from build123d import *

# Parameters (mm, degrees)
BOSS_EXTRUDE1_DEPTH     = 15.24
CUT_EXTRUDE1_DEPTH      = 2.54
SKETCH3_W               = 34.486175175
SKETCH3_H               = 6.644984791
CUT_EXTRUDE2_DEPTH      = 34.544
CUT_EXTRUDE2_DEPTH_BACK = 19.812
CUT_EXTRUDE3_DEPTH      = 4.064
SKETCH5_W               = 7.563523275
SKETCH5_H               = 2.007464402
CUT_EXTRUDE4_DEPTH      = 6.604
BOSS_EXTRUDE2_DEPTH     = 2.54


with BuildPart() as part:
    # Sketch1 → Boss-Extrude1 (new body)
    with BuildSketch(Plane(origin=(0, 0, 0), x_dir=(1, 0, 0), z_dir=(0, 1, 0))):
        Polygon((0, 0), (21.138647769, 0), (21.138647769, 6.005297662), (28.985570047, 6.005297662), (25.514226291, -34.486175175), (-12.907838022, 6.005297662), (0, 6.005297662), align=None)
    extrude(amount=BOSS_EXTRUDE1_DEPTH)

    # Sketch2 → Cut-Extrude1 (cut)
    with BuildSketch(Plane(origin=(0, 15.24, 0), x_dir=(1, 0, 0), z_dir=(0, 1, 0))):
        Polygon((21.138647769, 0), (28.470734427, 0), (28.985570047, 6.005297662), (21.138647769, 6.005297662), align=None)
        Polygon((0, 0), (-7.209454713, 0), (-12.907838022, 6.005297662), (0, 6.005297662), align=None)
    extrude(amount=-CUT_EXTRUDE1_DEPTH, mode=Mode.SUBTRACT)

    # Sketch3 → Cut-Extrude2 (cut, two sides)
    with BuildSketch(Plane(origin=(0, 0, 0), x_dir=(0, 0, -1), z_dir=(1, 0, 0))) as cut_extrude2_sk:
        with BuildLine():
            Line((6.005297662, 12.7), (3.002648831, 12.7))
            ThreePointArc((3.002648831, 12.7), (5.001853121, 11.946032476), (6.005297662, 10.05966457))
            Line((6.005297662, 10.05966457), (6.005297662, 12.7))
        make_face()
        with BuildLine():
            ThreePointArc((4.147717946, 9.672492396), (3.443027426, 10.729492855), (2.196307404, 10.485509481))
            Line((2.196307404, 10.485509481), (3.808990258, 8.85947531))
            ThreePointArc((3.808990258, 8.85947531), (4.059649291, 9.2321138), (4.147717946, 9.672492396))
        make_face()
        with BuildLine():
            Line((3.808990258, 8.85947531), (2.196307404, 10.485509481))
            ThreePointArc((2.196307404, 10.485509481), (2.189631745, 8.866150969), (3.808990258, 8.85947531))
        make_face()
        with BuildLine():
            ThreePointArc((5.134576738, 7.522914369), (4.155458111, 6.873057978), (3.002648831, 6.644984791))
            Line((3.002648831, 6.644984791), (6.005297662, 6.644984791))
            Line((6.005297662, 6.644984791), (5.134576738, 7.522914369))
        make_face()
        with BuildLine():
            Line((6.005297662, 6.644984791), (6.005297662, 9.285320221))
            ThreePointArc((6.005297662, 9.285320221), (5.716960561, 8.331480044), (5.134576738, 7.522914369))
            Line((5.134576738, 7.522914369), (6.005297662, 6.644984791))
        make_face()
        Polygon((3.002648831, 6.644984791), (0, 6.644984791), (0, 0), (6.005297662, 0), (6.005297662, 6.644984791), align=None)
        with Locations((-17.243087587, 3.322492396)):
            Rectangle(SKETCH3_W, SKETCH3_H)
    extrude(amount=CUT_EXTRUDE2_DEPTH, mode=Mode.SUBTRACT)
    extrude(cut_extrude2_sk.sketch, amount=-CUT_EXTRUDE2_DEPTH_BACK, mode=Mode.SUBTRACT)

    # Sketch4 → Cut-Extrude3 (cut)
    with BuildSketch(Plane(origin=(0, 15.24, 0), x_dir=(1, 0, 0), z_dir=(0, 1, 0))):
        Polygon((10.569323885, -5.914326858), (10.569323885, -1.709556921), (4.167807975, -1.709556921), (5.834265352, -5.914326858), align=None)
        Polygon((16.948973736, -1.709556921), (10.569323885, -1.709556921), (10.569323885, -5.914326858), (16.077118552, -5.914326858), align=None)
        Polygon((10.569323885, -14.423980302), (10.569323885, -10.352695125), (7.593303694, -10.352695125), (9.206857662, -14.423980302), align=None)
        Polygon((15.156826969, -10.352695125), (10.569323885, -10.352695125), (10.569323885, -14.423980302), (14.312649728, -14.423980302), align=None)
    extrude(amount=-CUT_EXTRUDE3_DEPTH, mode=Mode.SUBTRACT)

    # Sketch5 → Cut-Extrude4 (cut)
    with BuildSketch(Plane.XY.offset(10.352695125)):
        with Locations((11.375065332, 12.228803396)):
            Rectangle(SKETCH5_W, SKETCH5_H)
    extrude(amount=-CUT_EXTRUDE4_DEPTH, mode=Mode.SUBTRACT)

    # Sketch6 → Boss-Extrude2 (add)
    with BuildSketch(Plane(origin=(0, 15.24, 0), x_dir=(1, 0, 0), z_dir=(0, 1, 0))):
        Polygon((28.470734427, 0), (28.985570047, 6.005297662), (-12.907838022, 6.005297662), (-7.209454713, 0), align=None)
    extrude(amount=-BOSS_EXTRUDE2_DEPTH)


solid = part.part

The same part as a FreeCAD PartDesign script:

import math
import FreeCAD as App
import Part
import Sketcher
Q = App.Units.Quantity

doc = App.newDocument("Part")
body = doc.addObject("PartDesign::Body", "Body")

# Sketch on XZ plane
sketch1 = doc.addObject("Sketcher::SketchObject", "Sketch")
body.addObject(sketch1)
sketch1.AttachmentSupport = (doc.XZ_Plane, [""])
sketch1.MapMode = "FlatFace"
sketch1.addGeometry([
    Part.LineSegment(App.Vector(21.138648, 0, 0), App.Vector(0, 0, 0)),  # 0
    Part.LineSegment(App.Vector(0, 0, 0), App.Vector(0, -6.005298, 0)),  # 1
    Part.LineSegment(App.Vector(0, -6.005298, 0), App.Vector(-12.907838, -6.005298, 0)),  # 2
    Part.LineSegment(App.Vector(-12.907838, -6.005298, 0), App.Vector(25.514226, 34.486175, 0)),  # 3
    Part.LineSegment(App.Vector(25.514226, 34.486175, 0), App.Vector(28.98557, -6.005298, 0)),  # 4
    Part.LineSegment(App.Vector(28.98557, -6.005298, 0), App.Vector(21.138648, -6.005298, 0)),  # 5
    Part.LineSegment(App.Vector(21.138648, -6.005298, 0), App.Vector(21.138648, 0, 0)),  # 6
], False)
sketch1.addConstraint([
    Sketcher.Constraint("Coincident", 0, 2, 1, 1),
    Sketcher.Constraint("Coincident", 1, 2, 2, 1),
    Sketcher.Constraint("Coincident", 2, 2, 3, 1),
    Sketcher.Constraint("Coincident", 3, 2, 4, 1),
    Sketcher.Constraint("Coincident", 4, 2, 5, 1),
    Sketcher.Constraint("Coincident", 5, 2, 6, 1),
    Sketcher.Constraint("Coincident", 6, 2, 0, 1),
    Sketcher.Constraint("Horizontal", 0),
    Sketcher.Constraint("Vertical", 1),
    Sketcher.Constraint("Horizontal", 2),
    Sketcher.Constraint("Horizontal", 5),
    Sketcher.Constraint("Vertical", 6),
    Sketcher.Constraint("Coincident", 0, 2, -1, 1),
    Sketcher.Constraint("Horizontal", 2, 2, 4, 2),
    Sketcher.Constraint("Distance", 4, Q("1.6 in")),
    Sketcher.Constraint("Angle", 4, Q("-85.1 deg")),
    Sketcher.Constraint("DistanceX", 2, 2, 2, 1, Q("12.907838 mm")),
    Sketcher.Constraint("Distance", 3, Q("55.81948 mm")),
    Sketcher.Constraint("DistanceX", 0, 2, 0, 1, Q("21.138648 mm")),
    Sketcher.Constraint("DistanceY", 1, 2, 1, 1, Q("6.005298 mm")),
])
pad1 = doc.addObject("PartDesign::Pad", "Pad")
body.addObject(pad1)
pad1.Profile = sketch1
pad1.Length = Q("0.6 in")
pad1.Reversed = True

# Sketch on XZ plane
sketch2 = doc.addObject("Sketcher::SketchObject", "Sketch001")
body.addObject(sketch2)
sketch2.AttachmentSupport = (doc.XZ_Plane, [""])
sketch2.MapMode = "FlatFace"
sketch2.AttachmentOffset = App.Placement(App.Vector(0, 0, -0.6 * 25.4), App.Rotation())
sketch2.addGeometry([
    Part.LineSegment(App.Vector(21.138648, 0, 0), App.Vector(28.470734, 0, 0)),  # 0
    Part.LineSegment(App.Vector(28.470734, 0, 0), App.Vector(28.98557, -6.005298, 0)),  # 1
    Part.LineSegment(App.Vector(28.98557, -6.005298, 0), App.Vector(21.138648, -6.005298, 0)),  # 2
    Part.LineSegment(App.Vector(21.138648, -6.005298, 0), App.Vector(21.138648, 0, 0)),  # 3
    Part.LineSegment(App.Vector(-7.209455, 0, 0), App.Vector(0, 0, 0)),  # 4
    Part.LineSegment(App.Vector(0, 0, 0), App.Vector(0, -6.005298, 0)),  # 5
    Part.LineSegment(App.Vector(0, -6.005298, 0), App.Vector(-12.907838, -6.005298, 0)),  # 6
    Part.LineSegment(App.Vector(-12.907838, -6.005298, 0), App.Vector(-7.209455, 0, 0)),  # 7
], False)
sketch2.addConstraint([
    Sketcher.Constraint("Coincident", 0, 2, 1, 1),
    Sketcher.Constraint("Coincident", 1, 2, 2, 1),
    Sketcher.Constraint("Coincident", 2, 2, 3, 1),
    Sketcher.Constraint("Coincident", 3, 2, 0, 1),
    Sketcher.Constraint("Coincident", 4, 2, 5, 1),
    Sketcher.Constraint("Coincident", 5, 2, 6, 1),
    Sketcher.Constraint("Coincident", 6, 2, 7, 1),
    Sketcher.Constraint("Coincident", 7, 2, 4, 1),
    Sketcher.Constraint("Horizontal", 0),
    Sketcher.Constraint("Horizontal", 2),
    Sketcher.Constraint("Vertical", 3),
    Sketcher.Constraint("Horizontal", 4),
    Sketcher.Constraint("Vertical", 5),
    Sketcher.Constraint("Horizontal", 6),
    Sketcher.Constraint("Coincident", 4, 2, -1, 1),
    Sketcher.Constraint("PointOnObject", 0, 2, -1),
    Sketcher.Constraint("Horizontal", 2, 2, 5, 2),
    Sketcher.Constraint("Angle", 1, Q("-85.1 deg")),
    Sketcher.Constraint("DistanceX", 6, 2, 6, 1, Q("12.907838 mm")),
    Sketcher.Constraint("DistanceX", 0, 1, 0, 2, Q("7.332087 mm")),
    Sketcher.Constraint("DistanceX", 2, 2, 2, 1, Q("7.846922 mm")),
    Sketcher.Constraint("DistanceX", 4, 1, 4, 2, Q("7.209455 mm")),
    Sketcher.Constraint("DistanceX", -1, 1, 1, 2, Q("28.98557 mm")),
])
pocket1 = doc.addObject("PartDesign::Pocket", "Pocket")
body.addObject(pocket1)
pocket1.Profile = sketch2
pocket1.Length = Q("0.1 in")
pocket1.Reversed = True

# Sketch on YZ plane
sketch3 = doc.addObject("Sketcher::SketchObject", "Sketch002")
body.addObject(sketch3)
sketch3.AttachmentSupport = (doc.YZ_Plane, [""])
sketch3.MapMode = "FlatFace"
sketch3.addGeometry([
    Part.LineSegment(App.Vector(12.7, -6.005298, 0), App.Vector(12.7, -3.002649, 0)),  # 0
    Part.ArcOfCircle(Part.Circle(App.Vector(9.672492, -3.002649, 0), App.Vector(0, 0, 1), 3.027508), math.radians(-82.65262), math.radians(0)),  # 1
    Part.LineSegment(App.Vector(10.059665, -6.005298, 0), App.Vector(12.7, -6.005298, 0)),  # 2
    Part.ArcOfCircle(Part.Circle(App.Vector(9.672492, -3.002649, 0), App.Vector(0, 0, 1), 1.145069), math.radians(-90), math.radians(44.763805)),  # 3
    Part.ArcOfCircle(Part.Circle(App.Vector(9.672492, -3.002649, 0), App.Vector(0, 0, 1), 1.145069), math.radians(44.763805), math.radians(224.763805)),  # 4
    Part.ArcOfCircle(Part.Circle(App.Vector(9.672492, -3.002649, 0), App.Vector(0, 0, 1), 1.145069), math.radians(-135.236196), math.radians(-90)),  # 5
    Part.ArcOfCircle(Part.Circle(App.Vector(9.672492, -3.002649, 0), App.Vector(0, 0, 1), 3.027508), math.radians(-180), math.radians(-135.236195)),  # 6
    Part.LineSegment(App.Vector(6.644985, -3.002649, 0), App.Vector(6.644985, 0, 0)),  # 7
    Part.LineSegment(App.Vector(6.644985, 0, 0), App.Vector(6.644985, 34.486175, 0)),  # 8
    Part.LineSegment(App.Vector(6.644985, 34.486175, 0), App.Vector(0, 34.486175, 0)),  # 9
    Part.LineSegment(App.Vector(0, 34.486175, 0), App.Vector(0, 0, 0)),  # 10
    Part.LineSegment(App.Vector(0, 0, 0), App.Vector(0, -6.005298, 0)),  # 11
    Part.LineSegment(App.Vector(0, -6.005298, 0), App.Vector(9.28532, -6.005298, 0)),  # 12
    Part.ArcOfCircle(Part.Circle(App.Vector(9.672492, -3.002649, 0), App.Vector(0, 0, 1), 3.027508), math.radians(-135.236195), math.radians(-97.347379)),  # 13
], False)
sketch3.addConstraint([
    Sketcher.Constraint("Tangent", 0, 2, 1, 2),
    Sketcher.Constraint("Coincident", 1, 1, 2, 1),
    Sketcher.Constraint("Coincident", 2, 2, 0, 1),
    Sketcher.Constraint("Tangent", 3, 2, 4, 1),
    Sketcher.Constraint("Tangent", 4, 2, 5, 1),
    Sketcher.Constraint("Tangent", 5, 2, 3, 1),
    Sketcher.Constraint("Tangent", 6, 1, 7, 1),
    Sketcher.Constraint("Coincident", 7, 2, 8, 1),
    Sketcher.Constraint("Coincident", 8, 2, 9, 1),
    Sketcher.Constraint("Coincident", 9, 2, 10, 1),
    Sketcher.Constraint("Coincident", 10, 2, 11, 1),
    Sketcher.Constraint("Coincident", 11, 2, 12, 1),
    Sketcher.Constraint("Coincident", 12, 2, 13, 2),
    Sketcher.Constraint("Tangent", 13, 1, 6, 2),
    Sketcher.Constraint("Vertical", 0),
    Sketcher.Constraint("Horizontal", 2),
    Sketcher.Constraint("Vertical", 7),
    Sketcher.Constraint("Vertical", 8),
    Sketcher.Constraint("Horizontal", 9),
    Sketcher.Constraint("Vertical", 10),
    Sketcher.Constraint("Vertical", 11),
    Sketcher.Constraint("Horizontal", 12),
    Sketcher.Constraint("Coincident", 10, 2, -1, 1),
    Sketcher.Constraint("Coincident", 3, 3, 1, 3),
    Sketcher.Constraint("Coincident", 6, 3, 1, 3),
    Sketcher.Constraint("Equal", 1, 6),
    Sketcher.Constraint("Equal", 6, 13),
    Sketcher.Constraint("PointOnObject", 7, 2, -1),
    Sketcher.Constraint("Horizontal", 2, 2, 11, 2),
    Sketcher.Constraint("Vertical", 13, 3, 5, 2),
    Sketcher.Constraint("Equal", 0, 7),
    Sketcher.Constraint("DistanceX", -1, 1, 0, 2, Q("0.5 in")),
    Sketcher.Constraint("Radius", 3, Q("1.145069 mm")),
    Sketcher.Constraint("Radius", 1, Q("3.027508 mm")),
    Sketcher.Constraint("DistanceX", 12, 1, 12, 2, Q("9.28532 mm")),
    Sketcher.Constraint("DistanceY", 8, 1, 8, 2, Q("34.486175 mm")),
    Sketcher.Constraint("DistanceX", -1, 1, 3, 2, Q("10.485509 mm")),
    Sketcher.Constraint("DistanceY", 4, 2, -1, 1, Q("3.80899 mm")),
    Sketcher.Constraint("DistanceX", 13, 1, 4, 2, Q("1.336561 mm")),
])
pocket2 = doc.addObject("PartDesign::Pocket", "Pocket001")
body.addObject(pocket2)
pocket2.Profile = sketch3
pocket2.Type = "ThroughAll"
pocket2.Midplane = True

# Sketch on XZ plane
sketch4 = doc.addObject("Sketcher::SketchObject", "Sketch003")
body.addObject(sketch4)
sketch4.AttachmentSupport = (doc.XZ_Plane, [""])
sketch4.MapMode = "FlatFace"
sketch4.AttachmentOffset = App.Placement(App.Vector(0, 0, -0.6 * 25.4), App.Rotation())
sketch4.addGeometry([
    Part.LineSegment(App.Vector(4.167808, 1.709557, 0), App.Vector(5.834265, 5.914327, 0)),  # 0
    Part.LineSegment(App.Vector(5.834265, 5.914327, 0), App.Vector(16.077119, 5.914327, 0)),  # 1
    Part.LineSegment(App.Vector(16.077119, 5.914327, 0), App.Vector(16.948974, 1.709557, 0)),  # 2
    Part.LineSegment(App.Vector(16.948974, 1.709557, 0), App.Vector(4.167808, 1.709557, 0)),  # 3
    Part.LineSegment(App.Vector(7.593304, 10.352695, 0), App.Vector(9.206858, 14.42398, 0)),  # 4
    Part.LineSegment(App.Vector(9.206858, 14.42398, 0), App.Vector(14.31265, 14.42398, 0)),  # 5
    Part.LineSegment(App.Vector(14.31265, 14.42398, 0), App.Vector(15.156827, 10.352695, 0)),  # 6
    Part.LineSegment(App.Vector(15.156827, 10.352695, 0), App.Vector(7.593304, 10.352695, 0)),  # 7
], False)
sketch4.addConstraint([
    Sketcher.Constraint("Coincident", 0, 2, 1, 1),
    Sketcher.Constraint("Coincident", 1, 2, 2, 1),
    Sketcher.Constraint("Coincident", 2, 2, 3, 1),
    Sketcher.Constraint("Coincident", 3, 2, 0, 1),
    Sketcher.Constraint("Coincident", 4, 2, 5, 1),
    Sketcher.Constraint("Coincident", 5, 2, 6, 1),
    Sketcher.Constraint("Coincident", 6, 2, 7, 1),
    Sketcher.Constraint("Coincident", 7, 2, 4, 1),
    Sketcher.Constraint("Horizontal", 1),
    Sketcher.Constraint("Horizontal", 3),
    Sketcher.Constraint("Horizontal", 5),
    Sketcher.Constraint("Horizontal", 7),
    Sketcher.Constraint("Parallel", 0, 4),
    Sketcher.Constraint("Parallel", 2, 6),
    Sketcher.Constraint("Distance", 0, Q("4.52296 mm")),
    Sketcher.Constraint("DistanceX", 1, 1, 1, 2, Q("10.242853 mm")),
    Sketcher.Constraint("DistanceX", 3, 2, 3, 1, Q("12.781166 mm")),
    Sketcher.Constraint("DistanceX", 5, 1, 5, 2, Q("5.105792 mm")),
    Sketcher.Constraint("DistanceX", 7, 2, 7, 1, Q("7.563523 mm")),
    Sketcher.Constraint("DistanceX", -1, 1, 1, 2, Q("16.077119 mm")),
    Sketcher.Constraint("DistanceY", -1, 1, 4, 2, Q("14.42398 mm")),
    Sketcher.Constraint("DistanceX", -1, 1, 5, 2, Q("14.31265 mm")),
    Sketcher.Constraint("DistanceY", 2, 2, 1, 2, Q("4.20477 mm")),
    Sketcher.Constraint("DistanceY", 1, 2, 6, 2, Q("4.438368 mm")),
])
pocket3 = doc.addObject("PartDesign::Pocket", "Pocket002")
body.addObject(pocket3)
pocket3.Profile = sketch4
pocket3.Length = Q("0.16 in")
pocket3.Reversed = True

# Sketch on XY plane
sketch5 = doc.addObject("Sketcher::SketchObject", "Sketch004")
body.addObject(sketch5)
sketch5.AttachmentSupport = (doc.XY_Plane, [""])
sketch5.MapMode = "FlatFace"
sketch5.AttachmentOffset = App.Placement(App.Vector(0, 0, 10.352695), App.Rotation())
sketch5.addGeometry([
    Part.LineSegment(App.Vector(7.593304, 13.232536, 0), App.Vector(7.593304, 11.225071, 0)),
    Part.LineSegment(App.Vector(7.593304, 11.225071, 0), App.Vector(15.156827, 11.225071, 0)),
    Part.LineSegment(App.Vector(15.156827, 11.225071, 0), App.Vector(15.156827, 13.232536, 0)),
    Part.LineSegment(App.Vector(15.156827, 13.232536, 0), App.Vector(7.593304, 13.232536, 0)),
], False)
sketch5.addConstraint([
    Sketcher.Constraint("Coincident", 0, 2, 1, 1),
    Sketcher.Constraint("Coincident", 1, 2, 2, 1),
    Sketcher.Constraint("Coincident", 2, 2, 3, 1),
    Sketcher.Constraint("Coincident", 3, 2, 0, 1),
    Sketcher.Constraint("Vertical", 0),
    Sketcher.Constraint("Horizontal", 1),
    Sketcher.Constraint("Vertical", 2),
    Sketcher.Constraint("Horizontal", 3),
    Sketcher.Constraint("DistanceX", 1, 1, 1, 2, Q("7.563523 mm")),
    Sketcher.Constraint("DistanceY", 0, 2, 0, 1, Q("2.007464 mm")),
    Sketcher.Constraint("DistanceY", -1, 1, 0, 2, Q("11.225071 mm")),
    Sketcher.Constraint("DistanceX", -1, 1, 0, 2, Q("7.593304 mm")),
])
pocket4 = doc.addObject("PartDesign::Pocket", "Pocket003")
body.addObject(pocket4)
pocket4.Profile = sketch5
pocket4.Length = Q("0.26 in")

# Sketch on XZ plane
sketch6 = doc.addObject("Sketcher::SketchObject", "Sketch005")
body.addObject(sketch6)
sketch6.AttachmentSupport = (doc.XZ_Plane, [""])
sketch6.MapMode = "FlatFace"
sketch6.AttachmentOffset = App.Placement(App.Vector(0, 0, -0.6 * 25.4), App.Rotation())
sketch6.addGeometry([
    Part.LineSegment(App.Vector(28.470734, 0, 0), App.Vector(28.98557, -6.005298, 0)),
    Part.LineSegment(App.Vector(28.98557, -6.005298, 0), App.Vector(-12.907838, -6.005298, 0)),
    Part.LineSegment(App.Vector(-12.907838, -6.005298, 0), App.Vector(-7.209455, 0, 0)),
    Part.LineSegment(App.Vector(-7.209455, 0, 0), App.Vector(28.470734, 0, 0)),
], False)
sketch6.addConstraint([
    Sketcher.Constraint("Coincident", 0, 2, 1, 1),
    Sketcher.Constraint("Coincident", 1, 2, 2, 1),
    Sketcher.Constraint("Coincident", 2, 2, 3, 1),
    Sketcher.Constraint("Coincident", 3, 2, 0, 1),
    Sketcher.Constraint("Horizontal", 1),
    Sketcher.Constraint("Horizontal", 3),
    Sketcher.Constraint("PointOnObject", 2, 2, -1),
    Sketcher.Constraint("Angle", 0, Q("-85.1 deg")),
    Sketcher.Constraint("DistanceX", 1, 2, 1, 1, Q("41.893408 mm")),
    Sketcher.Constraint("DistanceX", 3, 1, 3, 2, Q("35.680189 mm")),
    Sketcher.Constraint("DistanceX", -1, 1, 0, 2, Q("28.98557 mm")),
    Sketcher.Constraint("Distance", 0, Q("6.027326 mm")),
])
pad2 = doc.addObject("PartDesign::Pad", "Pad001")
body.addObject(pad2)
pad2.Profile = sketch6
pad2.Length = Q("0.1 in")

doc.recompute()
